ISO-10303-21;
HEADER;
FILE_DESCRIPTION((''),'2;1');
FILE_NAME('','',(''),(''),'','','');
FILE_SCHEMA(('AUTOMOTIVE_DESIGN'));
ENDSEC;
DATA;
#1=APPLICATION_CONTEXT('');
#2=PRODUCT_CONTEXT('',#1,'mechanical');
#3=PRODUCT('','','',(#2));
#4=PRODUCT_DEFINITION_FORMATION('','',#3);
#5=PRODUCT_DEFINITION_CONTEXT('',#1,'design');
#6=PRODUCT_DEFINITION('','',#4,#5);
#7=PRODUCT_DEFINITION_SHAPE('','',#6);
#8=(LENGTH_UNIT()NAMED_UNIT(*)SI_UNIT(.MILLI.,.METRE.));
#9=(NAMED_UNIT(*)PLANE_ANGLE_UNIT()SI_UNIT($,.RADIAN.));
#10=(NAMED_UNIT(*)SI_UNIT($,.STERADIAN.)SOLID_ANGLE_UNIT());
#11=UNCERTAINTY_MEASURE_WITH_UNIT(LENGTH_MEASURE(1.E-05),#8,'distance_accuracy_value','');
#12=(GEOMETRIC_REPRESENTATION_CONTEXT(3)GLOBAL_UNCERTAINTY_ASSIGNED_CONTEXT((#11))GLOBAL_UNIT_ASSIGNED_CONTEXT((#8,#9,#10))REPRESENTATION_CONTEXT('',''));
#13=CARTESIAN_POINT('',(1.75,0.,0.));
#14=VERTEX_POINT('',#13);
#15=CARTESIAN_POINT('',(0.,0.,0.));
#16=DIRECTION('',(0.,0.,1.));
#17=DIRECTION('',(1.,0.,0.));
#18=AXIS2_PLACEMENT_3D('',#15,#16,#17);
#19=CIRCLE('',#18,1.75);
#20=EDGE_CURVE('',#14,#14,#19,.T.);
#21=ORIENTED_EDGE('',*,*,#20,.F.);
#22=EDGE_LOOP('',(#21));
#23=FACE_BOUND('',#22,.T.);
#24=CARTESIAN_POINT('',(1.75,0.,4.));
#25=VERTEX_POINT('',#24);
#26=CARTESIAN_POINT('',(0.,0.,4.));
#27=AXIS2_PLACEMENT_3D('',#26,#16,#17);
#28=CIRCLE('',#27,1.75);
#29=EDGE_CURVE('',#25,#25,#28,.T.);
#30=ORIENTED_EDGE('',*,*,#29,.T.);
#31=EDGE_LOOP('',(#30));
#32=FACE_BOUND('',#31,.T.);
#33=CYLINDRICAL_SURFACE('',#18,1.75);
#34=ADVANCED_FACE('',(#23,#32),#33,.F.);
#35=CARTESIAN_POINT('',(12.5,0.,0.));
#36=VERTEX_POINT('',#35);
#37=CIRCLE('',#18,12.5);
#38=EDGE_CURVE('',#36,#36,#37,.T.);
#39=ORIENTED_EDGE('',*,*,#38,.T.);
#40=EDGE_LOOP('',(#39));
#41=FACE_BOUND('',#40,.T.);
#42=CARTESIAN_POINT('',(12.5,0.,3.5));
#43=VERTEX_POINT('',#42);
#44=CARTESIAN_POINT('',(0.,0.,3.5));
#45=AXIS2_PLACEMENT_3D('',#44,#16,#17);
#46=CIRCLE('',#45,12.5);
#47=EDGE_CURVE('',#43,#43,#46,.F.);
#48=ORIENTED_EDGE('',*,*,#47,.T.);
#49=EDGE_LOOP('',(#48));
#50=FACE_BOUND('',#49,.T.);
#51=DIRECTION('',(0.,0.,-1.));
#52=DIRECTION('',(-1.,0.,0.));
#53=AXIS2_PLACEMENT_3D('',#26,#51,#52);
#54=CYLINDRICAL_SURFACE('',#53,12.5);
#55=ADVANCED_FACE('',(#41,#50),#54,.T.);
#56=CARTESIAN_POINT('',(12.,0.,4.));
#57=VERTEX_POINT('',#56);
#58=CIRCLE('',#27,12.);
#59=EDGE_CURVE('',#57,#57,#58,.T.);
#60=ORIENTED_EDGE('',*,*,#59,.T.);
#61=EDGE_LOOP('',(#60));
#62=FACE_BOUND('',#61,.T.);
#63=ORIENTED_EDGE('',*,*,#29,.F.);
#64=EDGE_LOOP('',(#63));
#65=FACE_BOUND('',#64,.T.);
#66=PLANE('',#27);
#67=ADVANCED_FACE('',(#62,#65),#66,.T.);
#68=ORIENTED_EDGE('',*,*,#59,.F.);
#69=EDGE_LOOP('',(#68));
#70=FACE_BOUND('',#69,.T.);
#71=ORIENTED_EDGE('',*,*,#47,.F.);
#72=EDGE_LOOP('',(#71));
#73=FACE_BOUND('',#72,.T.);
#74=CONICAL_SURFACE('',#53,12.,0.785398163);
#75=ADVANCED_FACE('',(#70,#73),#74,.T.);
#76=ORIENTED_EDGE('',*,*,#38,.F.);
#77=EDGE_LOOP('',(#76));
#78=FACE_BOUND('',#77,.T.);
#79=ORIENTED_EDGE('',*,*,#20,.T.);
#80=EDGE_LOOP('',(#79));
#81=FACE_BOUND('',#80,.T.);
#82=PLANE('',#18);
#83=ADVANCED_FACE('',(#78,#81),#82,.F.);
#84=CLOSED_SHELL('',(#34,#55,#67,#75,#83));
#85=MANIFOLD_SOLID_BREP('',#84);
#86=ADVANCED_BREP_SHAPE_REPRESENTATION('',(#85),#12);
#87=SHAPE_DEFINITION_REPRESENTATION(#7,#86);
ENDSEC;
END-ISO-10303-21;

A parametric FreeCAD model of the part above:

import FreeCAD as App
import Part
import Sketcher
from FreeCAD import Vector


def edges_at(feature, points):
    """Names of the edges that pass closest to the given points."""
    edges = feature.Shape.Edges
    near = lambda p: min(range(len(edges)), key=lambda i: edges[i].distToShape(Part.Vertex(*p))[0])
    return sorted({f"Edge{near(p) + 1}" for p in points})

doc = App.newDocument("Part")
params = doc.addObject("Spreadsheet::Sheet", "Params")
for row, (alias, value) in enumerate([
    ("sketch1_diameter", "25 mm"),
    ("pad1_length", "4 mm"),
    ("chamfer_size", "0.5 mm"),
    ("sketch2_diameter", "2.5 mm"),
    ("sketch3_diameter", "3.5 mm"),
], start=1):
    params.set(f"A{row}", alias)
    params.set(f"B{row}", "=" + value)
    params.setAlias(f"B{row}", alias)

body = doc.addObject("PartDesign::Body", "Body")

# Sketch on XY plane
sketch1 = body.newObject("Sketcher::SketchObject", "Sketch")
sketch1.AttachmentSupport = (doc.getObject("XY_Plane"), [""])
sketch1.MapMode = "FlatFace"
sketch1.addGeometry(Part.Circle(Vector(0, 0, 0), Vector(0, 0, 1), 12.5), False)
sketch1.addConstraint(Sketcher.Constraint("Coincident", 0, 3, -1, 1))
sketch1.addConstraint(Sketcher.Constraint("Diameter", 0, 25.0))
sketch1.setExpression("Constraints[1]", "Params.sketch1_diameter")
pad1 = body.newObject("PartDesign::Pad", "Pad")
pad1.Profile = sketch1
pad1.setExpression("Length", "Params.pad1_length")
doc.recompute()

chamfer = body.newObject("PartDesign::Chamfer", "Chamfer")
chamfer.Base = (pad1, edges_at(pad1, [(-12.5, 0, 4)]))
chamfer.setExpression("Size", "Params.chamfer_size")

# Sketch on XY plane
sketch2 = body.newObject("Sketcher::SketchObject", "Sketch001")
sketch2.AttachmentSupport = (doc.getObject("XY_Plane"), [""])
sketch2.MapMode = "FlatFace"
sketch2.AttachmentOffset = App.Placement(Vector(0, 0, 4), App.Rotation())
sketch2.addGeometry(Part.Circle(Vector(0, 0, 0), Vector(0, 0, 1), 1.25), False)
sketch2.addConstraint(Sketcher.Constraint("Coincident", 0, 3, -1, 1))
sketch2.addConstraint(Sketcher.Constraint("Diameter", 0, 2.5))
sketch2.setExpression("Constraints[1]", "Params.sketch2_diameter")
pocket1 = body.newObject("PartDesign::Pocket", "Pocket")
pocket1.Profile = sketch2
pocket1.Type = "ThroughAll"

# Sketch on XY plane
sketch3 = body.newObject("Sketcher::SketchObject", "Sketch002")
sketch3.AttachmentSupport = (doc.getObject("XY_Plane"), [""])
sketch3.MapMode = "FlatFace"
sketch3.AttachmentOffset = App.Placement(Vector(0, 0, 4), App.Rotation())
sketch3.addGeometry(Part.Circle(Vector(0, 0, 0), Vector(0, 0, 1), 1.75), False)
sketch3.addConstraint(Sketcher.Constraint("Coincident", 0, 3, -1, 1))
sketch3.addConstraint(Sketcher.Constraint("Diameter", 0, 3.5))
sketch3.setExpression("Constraints[1]", "Params.sketch3_diameter")
pocket2 = body.newObject("PartDesign::Pocket", "Pocket001")
pocket2.Profile = sketch3
pocket2.Type = "ThroughAll"

doc.recompute()
